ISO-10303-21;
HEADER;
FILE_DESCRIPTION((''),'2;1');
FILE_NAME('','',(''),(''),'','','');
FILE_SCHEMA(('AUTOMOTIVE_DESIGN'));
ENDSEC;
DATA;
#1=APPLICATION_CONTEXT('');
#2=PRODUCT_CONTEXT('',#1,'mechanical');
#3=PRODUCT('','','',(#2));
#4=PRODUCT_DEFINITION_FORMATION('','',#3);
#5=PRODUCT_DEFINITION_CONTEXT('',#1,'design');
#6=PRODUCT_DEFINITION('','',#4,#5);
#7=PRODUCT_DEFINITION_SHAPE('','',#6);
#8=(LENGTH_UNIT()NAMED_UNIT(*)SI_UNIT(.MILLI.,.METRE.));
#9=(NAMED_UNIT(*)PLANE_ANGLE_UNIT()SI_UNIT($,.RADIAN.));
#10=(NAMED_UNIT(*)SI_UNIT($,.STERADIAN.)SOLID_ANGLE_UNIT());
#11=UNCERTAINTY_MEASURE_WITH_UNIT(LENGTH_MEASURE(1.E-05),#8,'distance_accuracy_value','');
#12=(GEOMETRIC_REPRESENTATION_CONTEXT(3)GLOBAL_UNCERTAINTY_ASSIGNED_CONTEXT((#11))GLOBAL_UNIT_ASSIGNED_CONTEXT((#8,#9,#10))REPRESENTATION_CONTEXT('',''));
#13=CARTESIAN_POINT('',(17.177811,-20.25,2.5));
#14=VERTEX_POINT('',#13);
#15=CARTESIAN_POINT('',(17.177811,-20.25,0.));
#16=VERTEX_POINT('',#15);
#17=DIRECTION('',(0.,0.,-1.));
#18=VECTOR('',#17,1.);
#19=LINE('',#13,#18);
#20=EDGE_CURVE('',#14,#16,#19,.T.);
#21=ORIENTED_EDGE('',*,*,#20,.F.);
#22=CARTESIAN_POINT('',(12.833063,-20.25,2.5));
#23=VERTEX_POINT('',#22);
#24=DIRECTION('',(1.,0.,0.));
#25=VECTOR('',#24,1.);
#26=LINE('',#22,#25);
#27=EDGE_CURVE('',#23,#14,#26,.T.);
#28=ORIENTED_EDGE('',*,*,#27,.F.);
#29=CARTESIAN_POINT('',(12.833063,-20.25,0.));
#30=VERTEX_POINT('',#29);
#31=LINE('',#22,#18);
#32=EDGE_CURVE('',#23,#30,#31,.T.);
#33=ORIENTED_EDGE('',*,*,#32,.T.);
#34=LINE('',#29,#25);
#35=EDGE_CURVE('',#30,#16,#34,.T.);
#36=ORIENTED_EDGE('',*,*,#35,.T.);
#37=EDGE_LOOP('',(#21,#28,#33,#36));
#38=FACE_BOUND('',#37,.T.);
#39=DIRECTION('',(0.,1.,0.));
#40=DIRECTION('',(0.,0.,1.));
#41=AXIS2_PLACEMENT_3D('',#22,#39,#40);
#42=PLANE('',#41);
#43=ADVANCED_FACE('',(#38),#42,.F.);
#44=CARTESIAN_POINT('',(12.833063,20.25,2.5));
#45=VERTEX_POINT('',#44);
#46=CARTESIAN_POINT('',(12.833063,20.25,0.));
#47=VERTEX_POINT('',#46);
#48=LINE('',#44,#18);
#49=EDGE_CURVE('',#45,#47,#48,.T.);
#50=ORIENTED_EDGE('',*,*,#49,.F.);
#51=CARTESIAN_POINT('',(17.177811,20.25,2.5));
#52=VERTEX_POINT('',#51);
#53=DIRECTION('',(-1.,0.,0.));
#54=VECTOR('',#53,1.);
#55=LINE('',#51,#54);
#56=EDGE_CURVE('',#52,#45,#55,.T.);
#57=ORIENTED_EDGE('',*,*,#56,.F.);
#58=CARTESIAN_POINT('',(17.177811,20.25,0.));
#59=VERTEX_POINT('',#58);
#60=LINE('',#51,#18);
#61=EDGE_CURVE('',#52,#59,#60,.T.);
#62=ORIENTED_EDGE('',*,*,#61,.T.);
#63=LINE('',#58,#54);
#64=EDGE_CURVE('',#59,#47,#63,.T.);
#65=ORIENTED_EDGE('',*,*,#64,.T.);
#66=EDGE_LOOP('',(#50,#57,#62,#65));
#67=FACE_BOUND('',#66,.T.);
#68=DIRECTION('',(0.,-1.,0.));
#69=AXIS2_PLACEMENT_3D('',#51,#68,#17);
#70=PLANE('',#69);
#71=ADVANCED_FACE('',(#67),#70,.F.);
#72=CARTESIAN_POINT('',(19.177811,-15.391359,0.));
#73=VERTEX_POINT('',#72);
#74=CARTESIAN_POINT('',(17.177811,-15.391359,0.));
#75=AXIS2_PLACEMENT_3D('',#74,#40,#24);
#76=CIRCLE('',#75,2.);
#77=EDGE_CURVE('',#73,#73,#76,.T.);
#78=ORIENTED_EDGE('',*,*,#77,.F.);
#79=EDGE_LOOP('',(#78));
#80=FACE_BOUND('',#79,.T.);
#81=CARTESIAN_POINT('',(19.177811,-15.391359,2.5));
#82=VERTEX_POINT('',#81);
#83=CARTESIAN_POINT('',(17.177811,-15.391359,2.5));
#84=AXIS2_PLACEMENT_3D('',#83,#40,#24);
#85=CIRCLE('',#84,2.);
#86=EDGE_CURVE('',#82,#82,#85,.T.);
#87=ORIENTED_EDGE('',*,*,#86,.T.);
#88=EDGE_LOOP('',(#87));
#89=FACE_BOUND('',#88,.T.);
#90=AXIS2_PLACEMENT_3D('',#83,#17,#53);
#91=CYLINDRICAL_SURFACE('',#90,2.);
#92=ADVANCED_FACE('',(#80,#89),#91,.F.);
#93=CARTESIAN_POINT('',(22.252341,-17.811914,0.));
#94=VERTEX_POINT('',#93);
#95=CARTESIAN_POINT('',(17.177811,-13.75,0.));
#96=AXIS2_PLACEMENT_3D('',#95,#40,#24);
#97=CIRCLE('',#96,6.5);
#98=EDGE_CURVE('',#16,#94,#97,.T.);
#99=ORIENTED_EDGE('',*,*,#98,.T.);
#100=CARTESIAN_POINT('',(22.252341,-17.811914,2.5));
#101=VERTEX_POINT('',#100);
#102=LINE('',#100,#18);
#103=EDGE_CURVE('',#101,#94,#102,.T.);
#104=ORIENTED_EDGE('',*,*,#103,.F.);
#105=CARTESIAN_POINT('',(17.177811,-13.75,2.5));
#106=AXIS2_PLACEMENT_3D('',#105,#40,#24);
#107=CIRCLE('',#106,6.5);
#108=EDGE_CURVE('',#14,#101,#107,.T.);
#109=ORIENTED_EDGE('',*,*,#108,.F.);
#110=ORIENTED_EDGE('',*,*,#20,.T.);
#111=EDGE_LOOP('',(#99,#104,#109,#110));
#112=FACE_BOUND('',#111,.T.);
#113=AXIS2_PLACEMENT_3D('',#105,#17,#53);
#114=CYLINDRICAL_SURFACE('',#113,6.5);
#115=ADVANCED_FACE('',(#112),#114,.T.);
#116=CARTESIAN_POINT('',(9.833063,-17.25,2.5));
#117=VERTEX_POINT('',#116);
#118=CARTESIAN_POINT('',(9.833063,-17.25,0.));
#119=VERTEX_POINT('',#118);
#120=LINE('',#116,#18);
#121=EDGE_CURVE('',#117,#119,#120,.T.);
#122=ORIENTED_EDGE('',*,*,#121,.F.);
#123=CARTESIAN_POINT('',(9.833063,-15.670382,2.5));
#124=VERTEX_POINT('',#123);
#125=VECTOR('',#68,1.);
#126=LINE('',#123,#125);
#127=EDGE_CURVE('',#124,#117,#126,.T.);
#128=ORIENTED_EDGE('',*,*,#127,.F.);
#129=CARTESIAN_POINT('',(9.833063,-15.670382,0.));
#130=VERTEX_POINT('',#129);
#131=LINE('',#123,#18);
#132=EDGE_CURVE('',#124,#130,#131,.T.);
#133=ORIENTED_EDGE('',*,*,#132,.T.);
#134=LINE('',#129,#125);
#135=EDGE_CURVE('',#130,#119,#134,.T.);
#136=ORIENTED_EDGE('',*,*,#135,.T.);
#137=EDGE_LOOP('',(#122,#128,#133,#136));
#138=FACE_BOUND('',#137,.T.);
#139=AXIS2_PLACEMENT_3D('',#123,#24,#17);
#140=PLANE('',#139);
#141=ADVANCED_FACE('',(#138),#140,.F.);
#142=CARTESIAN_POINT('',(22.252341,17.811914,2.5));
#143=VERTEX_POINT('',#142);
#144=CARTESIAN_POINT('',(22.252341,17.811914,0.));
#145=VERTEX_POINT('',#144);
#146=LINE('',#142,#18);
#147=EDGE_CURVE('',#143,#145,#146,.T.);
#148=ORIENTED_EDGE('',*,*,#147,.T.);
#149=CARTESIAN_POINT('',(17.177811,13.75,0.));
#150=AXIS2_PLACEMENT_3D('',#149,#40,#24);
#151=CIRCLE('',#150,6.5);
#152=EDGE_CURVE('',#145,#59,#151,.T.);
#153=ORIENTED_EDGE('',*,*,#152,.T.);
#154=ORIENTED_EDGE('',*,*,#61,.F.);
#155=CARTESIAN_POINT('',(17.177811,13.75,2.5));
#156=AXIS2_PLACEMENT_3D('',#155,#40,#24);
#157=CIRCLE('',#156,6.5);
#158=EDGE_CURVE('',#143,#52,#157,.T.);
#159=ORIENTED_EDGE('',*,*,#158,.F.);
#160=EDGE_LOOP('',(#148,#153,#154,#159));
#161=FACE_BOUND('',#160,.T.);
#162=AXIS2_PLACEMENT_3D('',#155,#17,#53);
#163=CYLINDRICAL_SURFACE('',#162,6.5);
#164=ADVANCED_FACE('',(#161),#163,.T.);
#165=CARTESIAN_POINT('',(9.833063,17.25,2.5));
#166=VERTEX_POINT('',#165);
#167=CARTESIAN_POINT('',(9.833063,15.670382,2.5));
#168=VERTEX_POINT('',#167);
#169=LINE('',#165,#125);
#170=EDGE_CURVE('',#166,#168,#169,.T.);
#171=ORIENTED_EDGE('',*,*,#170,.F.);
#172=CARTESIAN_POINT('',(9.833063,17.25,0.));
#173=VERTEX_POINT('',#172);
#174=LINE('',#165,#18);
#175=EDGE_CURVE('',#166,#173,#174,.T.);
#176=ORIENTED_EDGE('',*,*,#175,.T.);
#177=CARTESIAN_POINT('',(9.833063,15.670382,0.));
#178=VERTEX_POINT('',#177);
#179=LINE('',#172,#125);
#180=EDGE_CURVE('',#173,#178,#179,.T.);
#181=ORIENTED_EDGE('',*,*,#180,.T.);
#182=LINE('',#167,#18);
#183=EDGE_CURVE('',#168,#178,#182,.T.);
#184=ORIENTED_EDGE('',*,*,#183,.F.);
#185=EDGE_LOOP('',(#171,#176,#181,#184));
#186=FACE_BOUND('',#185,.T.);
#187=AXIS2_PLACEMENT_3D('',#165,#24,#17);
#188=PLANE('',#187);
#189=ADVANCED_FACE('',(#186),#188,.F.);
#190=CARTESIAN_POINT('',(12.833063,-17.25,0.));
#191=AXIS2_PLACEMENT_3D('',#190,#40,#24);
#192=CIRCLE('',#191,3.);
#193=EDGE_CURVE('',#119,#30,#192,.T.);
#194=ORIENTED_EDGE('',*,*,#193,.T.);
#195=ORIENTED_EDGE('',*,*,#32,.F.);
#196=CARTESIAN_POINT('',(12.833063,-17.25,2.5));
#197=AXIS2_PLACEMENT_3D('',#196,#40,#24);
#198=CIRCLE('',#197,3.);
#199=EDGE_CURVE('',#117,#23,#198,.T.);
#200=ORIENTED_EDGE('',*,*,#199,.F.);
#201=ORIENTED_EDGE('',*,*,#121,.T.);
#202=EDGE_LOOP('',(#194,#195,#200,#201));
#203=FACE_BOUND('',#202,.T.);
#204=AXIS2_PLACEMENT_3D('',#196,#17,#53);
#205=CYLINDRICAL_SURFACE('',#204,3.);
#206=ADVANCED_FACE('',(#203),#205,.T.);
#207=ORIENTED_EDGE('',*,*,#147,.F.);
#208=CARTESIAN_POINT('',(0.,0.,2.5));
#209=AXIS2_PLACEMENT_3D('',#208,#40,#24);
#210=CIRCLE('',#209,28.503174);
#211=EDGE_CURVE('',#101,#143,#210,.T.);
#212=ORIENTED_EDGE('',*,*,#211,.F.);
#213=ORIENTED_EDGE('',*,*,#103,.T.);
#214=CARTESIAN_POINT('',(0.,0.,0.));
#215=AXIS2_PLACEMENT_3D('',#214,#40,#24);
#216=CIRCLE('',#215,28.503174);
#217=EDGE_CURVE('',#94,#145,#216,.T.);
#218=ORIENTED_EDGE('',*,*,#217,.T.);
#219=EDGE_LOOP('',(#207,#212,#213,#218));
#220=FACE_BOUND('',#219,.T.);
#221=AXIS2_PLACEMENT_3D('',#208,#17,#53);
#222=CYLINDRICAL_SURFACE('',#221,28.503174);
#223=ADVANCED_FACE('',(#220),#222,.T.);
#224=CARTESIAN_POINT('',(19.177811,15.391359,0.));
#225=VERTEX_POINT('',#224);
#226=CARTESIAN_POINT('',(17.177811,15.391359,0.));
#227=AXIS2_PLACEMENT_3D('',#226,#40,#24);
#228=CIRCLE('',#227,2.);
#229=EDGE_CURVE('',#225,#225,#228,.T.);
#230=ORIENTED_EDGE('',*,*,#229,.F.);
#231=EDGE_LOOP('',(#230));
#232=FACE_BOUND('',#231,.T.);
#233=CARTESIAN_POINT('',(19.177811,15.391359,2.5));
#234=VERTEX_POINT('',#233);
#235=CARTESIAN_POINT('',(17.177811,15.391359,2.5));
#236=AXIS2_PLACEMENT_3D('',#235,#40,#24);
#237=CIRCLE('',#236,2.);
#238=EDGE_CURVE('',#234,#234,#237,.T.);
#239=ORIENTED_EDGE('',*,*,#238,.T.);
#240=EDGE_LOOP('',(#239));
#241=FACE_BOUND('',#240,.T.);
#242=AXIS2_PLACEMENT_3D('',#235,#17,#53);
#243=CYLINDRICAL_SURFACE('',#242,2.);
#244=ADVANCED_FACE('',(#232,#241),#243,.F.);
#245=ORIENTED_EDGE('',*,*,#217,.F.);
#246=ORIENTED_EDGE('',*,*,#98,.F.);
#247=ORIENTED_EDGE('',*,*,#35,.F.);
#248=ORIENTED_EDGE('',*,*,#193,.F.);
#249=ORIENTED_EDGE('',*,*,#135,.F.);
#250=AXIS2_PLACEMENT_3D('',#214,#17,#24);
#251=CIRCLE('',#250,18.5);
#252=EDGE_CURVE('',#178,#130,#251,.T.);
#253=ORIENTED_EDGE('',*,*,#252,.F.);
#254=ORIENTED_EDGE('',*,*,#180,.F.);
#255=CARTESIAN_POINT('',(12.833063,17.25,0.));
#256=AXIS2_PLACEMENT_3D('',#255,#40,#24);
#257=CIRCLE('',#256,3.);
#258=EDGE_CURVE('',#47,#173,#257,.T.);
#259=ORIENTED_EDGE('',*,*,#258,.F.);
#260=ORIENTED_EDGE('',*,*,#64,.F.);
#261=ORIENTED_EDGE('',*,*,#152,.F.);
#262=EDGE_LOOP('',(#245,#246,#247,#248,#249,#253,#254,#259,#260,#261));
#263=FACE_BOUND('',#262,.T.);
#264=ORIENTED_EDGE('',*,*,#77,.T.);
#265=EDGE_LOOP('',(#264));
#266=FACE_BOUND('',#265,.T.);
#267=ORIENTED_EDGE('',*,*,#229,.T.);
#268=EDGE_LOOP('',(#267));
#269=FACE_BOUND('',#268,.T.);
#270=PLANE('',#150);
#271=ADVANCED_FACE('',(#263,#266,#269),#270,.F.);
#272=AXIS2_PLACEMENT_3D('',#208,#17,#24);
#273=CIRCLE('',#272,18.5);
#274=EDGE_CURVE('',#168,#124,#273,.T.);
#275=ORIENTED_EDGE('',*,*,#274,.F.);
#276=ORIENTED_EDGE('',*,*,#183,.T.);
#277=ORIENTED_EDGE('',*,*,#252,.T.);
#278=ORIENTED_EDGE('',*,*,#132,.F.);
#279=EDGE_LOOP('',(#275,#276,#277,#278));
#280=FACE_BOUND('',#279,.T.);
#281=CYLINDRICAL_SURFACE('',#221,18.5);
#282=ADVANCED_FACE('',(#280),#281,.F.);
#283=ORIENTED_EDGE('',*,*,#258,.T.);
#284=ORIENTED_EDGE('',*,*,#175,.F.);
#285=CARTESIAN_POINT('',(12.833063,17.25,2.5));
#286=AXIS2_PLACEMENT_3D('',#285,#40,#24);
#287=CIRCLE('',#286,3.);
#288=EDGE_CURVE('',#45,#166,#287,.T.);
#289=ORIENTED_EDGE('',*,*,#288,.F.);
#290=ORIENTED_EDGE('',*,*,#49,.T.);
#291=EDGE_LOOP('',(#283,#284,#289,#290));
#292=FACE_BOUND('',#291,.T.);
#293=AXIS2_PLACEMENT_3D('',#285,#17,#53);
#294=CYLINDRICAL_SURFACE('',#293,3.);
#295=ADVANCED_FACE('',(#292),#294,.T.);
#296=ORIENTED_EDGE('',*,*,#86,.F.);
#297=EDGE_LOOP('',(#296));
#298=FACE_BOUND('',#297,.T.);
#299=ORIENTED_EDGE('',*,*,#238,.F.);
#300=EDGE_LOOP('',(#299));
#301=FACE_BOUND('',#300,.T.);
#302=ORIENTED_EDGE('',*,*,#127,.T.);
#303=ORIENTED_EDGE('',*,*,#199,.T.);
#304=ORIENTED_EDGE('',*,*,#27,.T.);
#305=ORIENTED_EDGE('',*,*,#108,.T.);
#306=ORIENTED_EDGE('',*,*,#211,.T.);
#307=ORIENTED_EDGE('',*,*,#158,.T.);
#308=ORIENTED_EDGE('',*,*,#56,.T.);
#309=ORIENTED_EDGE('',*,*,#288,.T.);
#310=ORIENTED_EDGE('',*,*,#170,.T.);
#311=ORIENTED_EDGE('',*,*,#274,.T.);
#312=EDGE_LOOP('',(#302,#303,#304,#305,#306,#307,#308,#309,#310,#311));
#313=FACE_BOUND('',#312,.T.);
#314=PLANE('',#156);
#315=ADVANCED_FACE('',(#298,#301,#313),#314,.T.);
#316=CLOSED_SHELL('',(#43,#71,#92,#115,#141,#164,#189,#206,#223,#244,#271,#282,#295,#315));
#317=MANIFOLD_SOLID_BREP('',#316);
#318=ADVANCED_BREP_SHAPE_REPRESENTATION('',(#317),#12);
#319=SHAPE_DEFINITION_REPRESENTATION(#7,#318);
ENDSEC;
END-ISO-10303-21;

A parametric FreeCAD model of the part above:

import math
import FreeCAD as App
import Part
import Sketcher

doc = App.newDocument("Part")
body = doc.addObject("PartDesign::Body", "Body")

# Sketch on XY plane
sketch1 = body.newObject("Sketcher::SketchObject", "Sketch")
sketch1.AttachmentSupport = (doc.getObject("XY_Plane"), [""])
sketch1.MapMode = "FlatFace"
sketch1.addGeometry(Part.LineSegment(App.Vector(17.2, 20.2, 0), App.Vector(12.8, 20.2, 0)), False)
sketch1.addGeometry(Part.ArcOfCircle(Part.Circle(App.Vector(12.8, 17.3, 0), App.Vector(0, 0, 1), 3), math.radians(90), math.radians(180)), False)
sketch1.addGeometry(Part.LineSegment(App.Vector(9.8, 17.2, 0), App.Vector(9.8, 15.7, 0)), False)
sketch1.addGeometry(Part.ArcOfCircle(Part.Circle(App.Vector(0, 0, 0), App.Vector(0, 0, 1), 18.5), math.radians(-58), math.radians(58)), False)
sketch1.addGeometry(Part.LineSegment(App.Vector(9.8, -15.7, 0), App.Vector(9.8, -17.2, 0)), False)
sketch1.addGeometry(Part.ArcOfCircle(Part.Circle(App.Vector(12.8, -17.3, 0), App.Vector(0, 0, 1), 3), math.radians(180), math.radians(270)), False)
sketch1.addGeometry(Part.LineSegment(App.Vector(12.8, -20.2, 0), App.Vector(17.2, -20.2, 0)), False)
sketch1.addGeometry(Part.ArcOfCircle(Part.Circle(App.Vector(17.2, -13.8, 0), App.Vector(0, 0, 1), 6.5), math.radians(-90), math.radians(-39)), False)
sketch1.addGeometry(Part.ArcOfCircle(Part.Circle(App.Vector(0, 0, 0), App.Vector(0, 0, 1), 28.5), math.radians(-39), math.radians(39)), False)
sketch1.addGeometry(Part.ArcOfCircle(Part.Circle(App.Vector(17.2, 13.8, 0), App.Vector(0, 0, 1), 6.5), math.radians(39), math.radians(90)), False)
sketch1.addGeometry(Part.Circle(App.Vector(17.2, -15.4, 0), App.Vector(0, 0, 1), 2), False)
sketch1.addGeometry(Part.Circle(App.Vector(17.2, 15.4, 0), App.Vector(0, 0, 1), 2), False)
sketch1.addConstraint(Sketcher.Constraint("Tangent", 0, 2, 1, 1))
sketch1.addConstraint(Sketcher.Constraint("Tangent", 1, 2, 2, 1))
sketch1.addConstraint(Sketcher.Constraint("Coincident", 2, 2, 3, 2))
sketch1.addConstraint(Sketcher.Constraint("Coincident", 3, 1, 4, 1))
sketch1.addConstraint(Sketcher.Constraint("Tangent", 4, 2, 5, 1))
sketch1.addConstraint(Sketcher.Constraint("Tangent", 5, 2, 6, 1))
sketch1.addConstraint(Sketcher.Constraint("Tangent", 6, 2, 7, 1))
sketch1.addConstraint(Sketcher.Constraint("Tangent", 7, 2, 8, 1))
sketch1.addConstraint(Sketcher.Constraint("Tangent", 8, 2, 9, 1))
sketch1.addConstraint(Sketcher.Constraint("Tangent", 9, 2, 0, 1))
sketch1.addConstraint(Sketcher.Constraint("Horizontal", 0))
sketch1.addConstraint(Sketcher.Constraint("Vertical", 2))
sketch1.addConstraint(Sketcher.Constraint("Vertical", 4))
sketch1.addConstraint(Sketcher.Constraint("Horizontal", 6))
sketch1.addConstraint(Sketcher.Constraint("Coincident", 3, 3, -1, 1))
sketch1.addConstraint(Sketcher.Constraint("Coincident", 8, 3, -1, 1))
sketch1.addConstraint(Sketcher.Constraint("Equal", 1, 5))
sketch1.addConstraint(Sketcher.Constraint("Equal", 7, 9))
sketch1.addConstraint(Sketcher.Constraint("Equal", 10, 11))
sketch1.addConstraint(Sketcher.Constraint("Symmetric", 1, 3, 5, 3, -1))
sketch1.addConstraint(Sketcher.Constraint("Symmetric", 10, 3, 11, 3, -1))
sketch1.addConstraint(Sketcher.Constraint("Vertical", 9, 3, 10, 3))
sketch1.addConstraint(Sketcher.Constraint("Diameter", 10, 4.0))
sketch1.addConstraint(Sketcher.Constraint("Radius", 1, 3.0))
sketch1.addConstraint(Sketcher.Constraint("Radius", 3, 18.5))
sketch1.addConstraint(Sketcher.Constraint("Radius", 7, 6.5))
sketch1.addConstraint(Sketcher.Constraint("DistanceY", 7, 3, 1, 3, 31.0))
sketch1.addConstraint(Sketcher.Constraint("Radius", 8, 28.503174))
sketch1.addConstraint(Sketcher.Constraint("DistanceX", 0, 2, 0, 1, 4.344748))
sketch1.addConstraint(Sketcher.Constraint("DistanceY", 10, 3, -1, 1, 15.391359))
pad1 = body.newObject("PartDesign::Pad", "Pad")
pad1.Profile = sketch1
pad1.Length = 2.5

doc.recompute()
